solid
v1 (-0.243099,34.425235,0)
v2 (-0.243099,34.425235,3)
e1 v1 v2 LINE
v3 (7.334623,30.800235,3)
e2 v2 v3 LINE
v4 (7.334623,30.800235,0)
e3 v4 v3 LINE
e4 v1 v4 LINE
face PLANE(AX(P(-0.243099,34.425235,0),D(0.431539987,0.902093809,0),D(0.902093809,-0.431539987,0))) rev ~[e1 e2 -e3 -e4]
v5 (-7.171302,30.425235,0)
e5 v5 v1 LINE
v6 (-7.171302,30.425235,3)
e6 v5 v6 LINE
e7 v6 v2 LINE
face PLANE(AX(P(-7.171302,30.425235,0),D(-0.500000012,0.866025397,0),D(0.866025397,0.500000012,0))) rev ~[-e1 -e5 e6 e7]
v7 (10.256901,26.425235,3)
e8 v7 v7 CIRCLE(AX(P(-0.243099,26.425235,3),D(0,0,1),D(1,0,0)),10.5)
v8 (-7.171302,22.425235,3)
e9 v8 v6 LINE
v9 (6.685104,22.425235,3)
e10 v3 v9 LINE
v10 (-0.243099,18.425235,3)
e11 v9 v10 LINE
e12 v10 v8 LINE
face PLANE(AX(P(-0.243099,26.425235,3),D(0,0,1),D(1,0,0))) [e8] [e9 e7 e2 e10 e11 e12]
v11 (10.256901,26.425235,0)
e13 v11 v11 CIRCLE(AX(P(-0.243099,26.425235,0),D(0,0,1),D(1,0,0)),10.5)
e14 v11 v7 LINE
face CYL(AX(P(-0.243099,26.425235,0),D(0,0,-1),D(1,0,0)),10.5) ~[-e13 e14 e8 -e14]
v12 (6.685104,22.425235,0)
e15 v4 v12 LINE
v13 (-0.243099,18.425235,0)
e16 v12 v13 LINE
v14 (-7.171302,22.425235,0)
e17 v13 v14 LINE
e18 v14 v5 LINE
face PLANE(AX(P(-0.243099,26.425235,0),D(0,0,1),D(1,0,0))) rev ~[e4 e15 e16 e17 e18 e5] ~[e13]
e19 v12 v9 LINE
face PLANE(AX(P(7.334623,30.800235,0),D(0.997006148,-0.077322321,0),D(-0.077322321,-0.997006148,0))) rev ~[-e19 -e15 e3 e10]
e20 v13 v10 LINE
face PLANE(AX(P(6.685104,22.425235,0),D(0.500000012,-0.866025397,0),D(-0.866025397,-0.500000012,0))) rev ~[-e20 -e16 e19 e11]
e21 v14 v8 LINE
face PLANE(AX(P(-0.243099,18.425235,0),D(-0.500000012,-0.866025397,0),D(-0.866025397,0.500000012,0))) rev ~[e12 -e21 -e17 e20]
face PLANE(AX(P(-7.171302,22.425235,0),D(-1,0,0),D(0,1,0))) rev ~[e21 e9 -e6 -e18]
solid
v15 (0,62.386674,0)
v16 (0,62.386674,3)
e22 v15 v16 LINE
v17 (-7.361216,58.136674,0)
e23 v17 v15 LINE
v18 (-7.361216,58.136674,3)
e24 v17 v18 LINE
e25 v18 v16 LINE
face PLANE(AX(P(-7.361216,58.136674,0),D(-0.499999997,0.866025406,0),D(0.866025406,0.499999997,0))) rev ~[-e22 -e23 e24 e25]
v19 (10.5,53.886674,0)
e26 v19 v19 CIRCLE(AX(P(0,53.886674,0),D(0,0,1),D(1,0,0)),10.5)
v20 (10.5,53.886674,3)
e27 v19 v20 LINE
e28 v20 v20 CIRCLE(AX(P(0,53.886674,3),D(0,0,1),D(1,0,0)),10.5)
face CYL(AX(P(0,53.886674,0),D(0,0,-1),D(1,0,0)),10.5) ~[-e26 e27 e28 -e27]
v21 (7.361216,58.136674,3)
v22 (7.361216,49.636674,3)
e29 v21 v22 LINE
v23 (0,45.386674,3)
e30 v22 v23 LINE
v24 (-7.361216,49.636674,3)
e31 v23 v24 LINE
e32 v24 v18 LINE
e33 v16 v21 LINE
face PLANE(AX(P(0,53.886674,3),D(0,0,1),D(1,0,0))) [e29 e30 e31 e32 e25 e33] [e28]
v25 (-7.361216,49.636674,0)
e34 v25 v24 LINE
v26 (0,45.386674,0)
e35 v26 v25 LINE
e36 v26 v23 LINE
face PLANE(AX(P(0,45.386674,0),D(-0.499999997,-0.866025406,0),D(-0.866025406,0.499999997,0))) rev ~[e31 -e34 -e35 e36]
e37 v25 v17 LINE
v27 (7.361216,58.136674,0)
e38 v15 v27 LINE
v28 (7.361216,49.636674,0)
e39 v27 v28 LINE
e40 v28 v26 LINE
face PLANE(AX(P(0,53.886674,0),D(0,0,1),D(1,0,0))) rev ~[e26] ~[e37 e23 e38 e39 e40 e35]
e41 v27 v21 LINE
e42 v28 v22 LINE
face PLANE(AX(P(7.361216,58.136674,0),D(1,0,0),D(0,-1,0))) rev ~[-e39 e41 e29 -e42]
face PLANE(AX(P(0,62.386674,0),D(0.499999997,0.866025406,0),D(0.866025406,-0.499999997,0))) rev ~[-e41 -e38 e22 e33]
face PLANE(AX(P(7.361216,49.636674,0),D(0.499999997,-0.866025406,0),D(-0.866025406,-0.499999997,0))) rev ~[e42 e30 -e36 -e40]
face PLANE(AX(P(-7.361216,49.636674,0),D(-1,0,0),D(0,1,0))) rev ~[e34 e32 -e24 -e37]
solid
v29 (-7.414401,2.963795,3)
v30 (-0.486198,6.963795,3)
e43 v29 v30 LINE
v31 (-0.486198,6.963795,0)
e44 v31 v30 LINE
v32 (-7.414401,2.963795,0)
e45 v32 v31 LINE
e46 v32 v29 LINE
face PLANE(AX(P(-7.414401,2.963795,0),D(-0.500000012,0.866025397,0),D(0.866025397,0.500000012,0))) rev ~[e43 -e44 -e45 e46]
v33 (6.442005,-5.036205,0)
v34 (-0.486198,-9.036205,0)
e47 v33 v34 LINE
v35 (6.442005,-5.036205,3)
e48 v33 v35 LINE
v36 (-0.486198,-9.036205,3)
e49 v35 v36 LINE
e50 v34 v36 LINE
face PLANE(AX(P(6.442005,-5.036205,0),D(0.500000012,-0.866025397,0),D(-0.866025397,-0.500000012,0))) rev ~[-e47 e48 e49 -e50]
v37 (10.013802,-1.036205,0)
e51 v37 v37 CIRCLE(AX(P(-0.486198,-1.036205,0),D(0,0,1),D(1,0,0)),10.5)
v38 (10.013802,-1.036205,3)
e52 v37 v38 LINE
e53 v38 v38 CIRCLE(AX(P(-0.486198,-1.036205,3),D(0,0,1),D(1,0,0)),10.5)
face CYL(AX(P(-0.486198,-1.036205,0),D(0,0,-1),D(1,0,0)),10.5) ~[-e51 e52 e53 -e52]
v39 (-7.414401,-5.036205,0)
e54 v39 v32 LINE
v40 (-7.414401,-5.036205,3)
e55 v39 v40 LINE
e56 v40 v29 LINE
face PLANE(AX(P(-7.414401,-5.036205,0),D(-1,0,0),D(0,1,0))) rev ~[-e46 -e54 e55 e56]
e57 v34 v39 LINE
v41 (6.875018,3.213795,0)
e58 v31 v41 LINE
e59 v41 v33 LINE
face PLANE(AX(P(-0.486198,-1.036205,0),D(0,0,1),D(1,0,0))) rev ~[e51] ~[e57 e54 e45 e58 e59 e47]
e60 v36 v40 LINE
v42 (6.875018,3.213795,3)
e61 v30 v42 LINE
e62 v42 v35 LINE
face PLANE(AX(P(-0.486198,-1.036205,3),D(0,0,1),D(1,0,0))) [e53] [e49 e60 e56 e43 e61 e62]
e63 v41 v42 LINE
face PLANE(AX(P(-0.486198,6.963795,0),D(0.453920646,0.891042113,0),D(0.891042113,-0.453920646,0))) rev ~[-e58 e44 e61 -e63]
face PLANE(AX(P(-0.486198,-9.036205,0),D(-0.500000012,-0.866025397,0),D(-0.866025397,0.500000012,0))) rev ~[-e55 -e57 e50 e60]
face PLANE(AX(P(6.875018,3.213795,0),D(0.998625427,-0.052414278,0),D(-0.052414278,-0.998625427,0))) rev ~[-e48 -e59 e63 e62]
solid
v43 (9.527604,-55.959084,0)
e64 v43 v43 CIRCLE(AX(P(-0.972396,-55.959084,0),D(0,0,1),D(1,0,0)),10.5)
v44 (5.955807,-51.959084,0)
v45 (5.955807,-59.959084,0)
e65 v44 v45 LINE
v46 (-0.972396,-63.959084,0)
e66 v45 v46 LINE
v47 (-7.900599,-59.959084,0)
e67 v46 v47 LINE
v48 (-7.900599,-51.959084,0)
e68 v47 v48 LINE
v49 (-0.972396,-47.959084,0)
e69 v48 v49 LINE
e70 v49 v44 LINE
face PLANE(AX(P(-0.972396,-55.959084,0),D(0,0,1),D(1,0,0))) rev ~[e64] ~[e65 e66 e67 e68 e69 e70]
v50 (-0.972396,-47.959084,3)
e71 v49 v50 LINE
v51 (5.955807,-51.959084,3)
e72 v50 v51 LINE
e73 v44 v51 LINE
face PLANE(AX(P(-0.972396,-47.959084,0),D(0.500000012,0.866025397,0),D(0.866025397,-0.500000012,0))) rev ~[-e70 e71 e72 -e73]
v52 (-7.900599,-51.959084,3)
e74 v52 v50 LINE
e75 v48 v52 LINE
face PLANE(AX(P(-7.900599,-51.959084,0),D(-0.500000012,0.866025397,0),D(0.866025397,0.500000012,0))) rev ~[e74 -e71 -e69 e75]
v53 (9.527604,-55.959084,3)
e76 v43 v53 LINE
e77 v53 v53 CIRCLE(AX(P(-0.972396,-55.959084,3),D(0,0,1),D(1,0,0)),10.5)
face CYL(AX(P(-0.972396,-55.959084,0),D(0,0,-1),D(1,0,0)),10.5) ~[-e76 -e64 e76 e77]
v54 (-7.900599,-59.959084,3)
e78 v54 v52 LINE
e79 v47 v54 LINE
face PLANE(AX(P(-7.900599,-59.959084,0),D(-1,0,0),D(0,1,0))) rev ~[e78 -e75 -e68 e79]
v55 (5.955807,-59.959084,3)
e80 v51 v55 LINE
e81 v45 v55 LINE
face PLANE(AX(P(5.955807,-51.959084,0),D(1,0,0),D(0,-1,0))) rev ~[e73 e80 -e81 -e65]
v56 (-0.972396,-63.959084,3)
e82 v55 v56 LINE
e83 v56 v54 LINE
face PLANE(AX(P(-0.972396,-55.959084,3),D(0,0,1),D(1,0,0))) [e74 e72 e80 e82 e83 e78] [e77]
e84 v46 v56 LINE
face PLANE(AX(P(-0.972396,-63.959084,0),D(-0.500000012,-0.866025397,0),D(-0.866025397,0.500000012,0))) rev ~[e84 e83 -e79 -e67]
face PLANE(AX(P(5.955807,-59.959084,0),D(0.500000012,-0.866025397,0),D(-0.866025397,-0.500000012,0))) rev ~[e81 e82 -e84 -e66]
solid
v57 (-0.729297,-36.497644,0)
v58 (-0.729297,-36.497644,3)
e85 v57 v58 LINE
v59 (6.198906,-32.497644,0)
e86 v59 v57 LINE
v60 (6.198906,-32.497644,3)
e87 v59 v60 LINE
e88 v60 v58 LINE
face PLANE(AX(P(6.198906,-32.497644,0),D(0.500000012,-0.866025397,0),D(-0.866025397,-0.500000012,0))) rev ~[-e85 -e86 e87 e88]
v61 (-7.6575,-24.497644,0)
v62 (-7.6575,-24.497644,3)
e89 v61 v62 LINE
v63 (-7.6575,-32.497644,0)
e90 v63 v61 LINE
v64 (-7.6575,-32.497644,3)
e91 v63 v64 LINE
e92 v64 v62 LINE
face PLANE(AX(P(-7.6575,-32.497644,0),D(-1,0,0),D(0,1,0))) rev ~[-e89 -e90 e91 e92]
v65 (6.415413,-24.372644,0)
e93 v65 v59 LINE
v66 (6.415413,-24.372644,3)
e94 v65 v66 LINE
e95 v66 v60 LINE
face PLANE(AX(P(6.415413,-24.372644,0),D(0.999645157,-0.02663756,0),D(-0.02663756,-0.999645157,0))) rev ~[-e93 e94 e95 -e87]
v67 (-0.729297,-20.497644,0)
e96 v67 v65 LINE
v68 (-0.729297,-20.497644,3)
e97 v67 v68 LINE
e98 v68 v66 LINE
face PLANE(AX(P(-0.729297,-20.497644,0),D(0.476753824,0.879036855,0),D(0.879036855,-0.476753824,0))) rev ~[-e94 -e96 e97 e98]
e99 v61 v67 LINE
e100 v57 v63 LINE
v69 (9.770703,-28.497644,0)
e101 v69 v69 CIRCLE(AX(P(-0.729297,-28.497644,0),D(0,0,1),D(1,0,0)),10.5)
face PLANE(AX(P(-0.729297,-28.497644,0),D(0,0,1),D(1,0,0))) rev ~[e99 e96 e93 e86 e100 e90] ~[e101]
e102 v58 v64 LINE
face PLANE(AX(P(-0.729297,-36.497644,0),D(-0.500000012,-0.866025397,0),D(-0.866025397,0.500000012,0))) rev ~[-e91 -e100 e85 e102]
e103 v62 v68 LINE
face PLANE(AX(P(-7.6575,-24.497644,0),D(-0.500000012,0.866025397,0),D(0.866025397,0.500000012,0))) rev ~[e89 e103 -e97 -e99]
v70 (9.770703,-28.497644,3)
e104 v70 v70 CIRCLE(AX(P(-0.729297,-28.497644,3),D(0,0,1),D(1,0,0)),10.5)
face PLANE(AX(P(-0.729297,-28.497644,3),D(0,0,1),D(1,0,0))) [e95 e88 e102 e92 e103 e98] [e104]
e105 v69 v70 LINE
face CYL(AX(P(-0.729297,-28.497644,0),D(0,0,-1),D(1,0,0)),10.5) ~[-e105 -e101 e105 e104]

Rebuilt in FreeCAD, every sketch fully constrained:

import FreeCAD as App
import Part
import Sketcher

V = App.Vector
Q = App.Units.Quantity

doc = App.newDocument("Part")
params = doc.addObject("Spreadsheet::Sheet", "Params")
for row, (alias, value) in enumerate([
    ("sketch1_diameter", "21 mm"),
    ("sketch1_height", "8 mm"),
    ("sketch1_length", "8 mm"),
    ("sketch1_height2", "8.5 mm"),
    ("pad1_length", "3 mm"),
], start=1):
    params.set(f"A{row}", alias)
    params.set(f"B{row}", "=" + value)
    params.setAlias(f"B{row}", alias)

body = doc.addObject("PartDesign::Body", "Body")
body.AllowCompound = True

# Sketch on XY plane
sketch1 = body.newObject("Sketcher::SketchObject", "Sketch")
sketch1.AttachmentSupport = (doc.getObject("XY_Plane"), [""])
sketch1.MapMode = "FlatFace"
sketch1.addGeometry(Part.Circle(V(0, 54, 0), V(0, 0, 1), 10), False)
sketch1.addGeometry(Part.LineSegment(V(-7, 50, 0), V(-7, 58, 0)), False)
sketch1.addGeometry(Part.LineSegment(V(-7, 58, 0), V(0, 62, 0)), False)
sketch1.addGeometry(Part.LineSegment(V(0, 62, 0), V(7, 58, 0)), False)
sketch1.addGeometry(Part.LineSegment(V(7, 58, 0), V(7, 50, 0)), False)
sketch1.addGeometry(Part.LineSegment(V(7, 50, 0), V(0, 45, 0)), False)
sketch1.addGeometry(Part.LineSegment(V(0, 45, 0), V(-7, 50, 0)), False)
sketch1.addGeometry(Part.Circle(V(0, 26, 0), V(0, 0, 1), 10), False)
sketch1.addGeometry(Part.LineSegment(V(-7, 22, 0), V(-7, 30, 0)), False)
sketch1.addGeometry(Part.LineSegment(V(-7, 30, 0), V(0, 34, 0)), False)
sketch1.addGeometry(Part.LineSegment(V(0, 34, 0), V(7, 31, 0)), False)
sketch1.addGeometry(Part.LineSegment(V(7, 31, 0), V(7, 22, 0)), False)
sketch1.addGeometry(Part.LineSegment(V(7, 22, 0), V(0, 18, 0)), False)
sketch1.addGeometry(Part.LineSegment(V(0, 18, 0), V(-7, 22, 0)), False)
sketch1.addGeometry(Part.Circle(V(0, -1, 0), V(0, 0, 1), 10), False)
sketch1.addGeometry(Part.LineSegment(V(-7, -5, 0), V(-7, 3, 0)), False)
sketch1.addGeometry(Part.LineSegment(V(-7, 3, 0), V(0, 7, 0)), False)
sketch1.addGeometry(Part.LineSegment(V(0, 7, 0), V(7, 3, 0)), False)
sketch1.addGeometry(Part.LineSegment(V(7, 3, 0), V(6, -5, 0)), False)
sketch1.addGeometry(Part.LineSegment(V(6, -5, 0), V(0, -9, 0)), False)
sketch1.addGeometry(Part.LineSegment(V(0, -9, 0), V(-7, -5, 0)), False)
sketch1.addGeometry(Part.Circle(V(-1, -28, 0), V(0, 0, 1), 10), False)
sketch1.addGeometry(Part.LineSegment(V(-8, -32, 0), V(-8, -24, 0)), False)
sketch1.addGeometry(Part.LineSegment(V(-8, -24, 0), V(-1, -20, 0)), False)
sketch1.addGeometry(Part.LineSegment(V(-1, -20, 0), V(6, -24, 0)), False)
sketch1.addGeometry(Part.LineSegment(V(6, -24, 0), V(6, -32, 0)), False)
sketch1.addGeometry(Part.LineSegment(V(6, -32, 0), V(-1, -36, 0)), False)
sketch1.addGeometry(Part.LineSegment(V(-1, -36, 0), V(-8, -32, 0)), False)
sketch1.addGeometry(Part.Circle(V(-1, -56, 0), V(0, 0, 1), 10), False)
sketch1.addGeometry(Part.LineSegment(V(-8, -60, 0), V(-8, -52, 0)), False)
sketch1.addGeometry(Part.LineSegment(V(-8, -52, 0), V(-1, -48, 0)), False)
sketch1.addGeometry(Part.LineSegment(V(-1, -48, 0), V(6, -52, 0)), False)
sketch1.addGeometry(Part.LineSegment(V(6, -52, 0), V(6, -60, 0)), False)
sketch1.addGeometry(Part.LineSegment(V(6, -60, 0), V(-1, -64, 0)), False)
sketch1.addGeometry(Part.LineSegment(V(-1, -64, 0), V(-8, -60, 0)), False)
sketch1.addConstraint(Sketcher.Constraint("Coincident", 1, 2, 2, 1))
sketch1.addConstraint(Sketcher.Constraint("Coincident", 2, 2, 3, 1))
sketch1.addConstraint(Sketcher.Constraint("Coincident", 3, 2, 4, 1))
sketch1.addConstraint(Sketcher.Constraint("Coincident", 4, 2, 5, 1))
sketch1.addConstraint(Sketcher.Constraint("Coincident", 5, 2, 6, 1))
sketch1.addConstraint(Sketcher.Constraint("Coincident", 6, 2, 1, 1))
sketch1.addConstraint(Sketcher.Constraint("Coincident", 8, 2, 9, 1))
sketch1.addConstraint(Sketcher.Constraint("Coincident", 9, 2, 10, 1))
sketch1.addConstraint(Sketcher.Constraint("Coincident", 10, 2, 11, 1))
sketch1.addConstraint(Sketcher.Constraint("Coincident", 11, 2, 12, 1))
sketch1.addConstraint(Sketcher.Constraint("Coincident", 12, 2, 13, 1))
sketch1.addConstraint(Sketcher.Constraint("Coincident", 13, 2, 8, 1))
sketch1.addConstraint(Sketcher.Constraint("Coincident", 15, 2, 16, 1))
sketch1.addConstraint(Sketcher.Constraint("Coincident", 16, 2, 17, 1))
sketch1.addConstraint(Sketcher.Constraint("Coincident", 17, 2, 18, 1))
sketch1.addConstraint(Sketcher.Constraint("Coincident", 18, 2, 19, 1))
sketch1.addConstraint(Sketcher.Constraint("Coincident", 19, 2, 20, 1))
sketch1.addConstraint(Sketcher.Constraint("Coincident", 20, 2, 15, 1))
sketch1.addConstraint(Sketcher.Constraint("Coincident", 22, 2, 23, 1))
sketch1.addConstraint(Sketcher.Constraint("Coincident", 23, 2, 24, 1))
sketch1.addConstraint(Sketcher.Constraint("Coincident", 24, 2, 25, 1))
sketch1.addConstraint(Sketcher.Constraint("Coincident", 25, 2, 26, 1))
sketch1.addConstraint(Sketcher.Constraint("Coincident", 26, 2, 27, 1))
sketch1.addConstraint(Sketcher.Constraint("Coincident", 27, 2, 22, 1))
sketch1.addConstraint(Sketcher.Constraint("Coincident", 29, 2, 30, 1))
sketch1.addConstraint(Sketcher.Constraint("Coincident", 30, 2, 31, 1))
sketch1.addConstraint(Sketcher.Constraint("Coincident", 31, 2, 32, 1))
sketch1.addConstraint(Sketcher.Constraint("Coincident", 32, 2, 33, 1))
sketch1.addConstraint(Sketcher.Constraint("Coincident", 33, 2, 34, 1))
sketch1.addConstraint(Sketcher.Constraint("Coincident", 34, 2, 29, 1))
sketch1.addConstraint(Sketcher.Constraint("Vertical", 1))
sketch1.addConstraint(Sketcher.Constraint("Vertical", 4))
sketch1.addConstraint(Sketcher.Constraint("Vertical", 8))
sketch1.addConstraint(Sketcher.Constraint("Vertical", 15))
sketch1.addConstraint(Sketcher.Constraint("Vertical", 22))
sketch1.addConstraint(Sketcher.Constraint("Vertical", 29))
sketch1.addConstraint(Sketcher.Constraint("Vertical", 32))
sketch1.addConstraint(Sketcher.Constraint("Equal", 0, 7))
sketch1.addConstraint(Sketcher.Constraint("Equal", 7, 14))
sketch1.addConstraint(Sketcher.Constraint("Equal", 14, 21))
sketch1.addConstraint(Sketcher.Constraint("Equal", 21, 28))
sketch1.addConstraint(Sketcher.Constraint("Symmetric", 1, 2, 3, 2, -2))
sketch1.addConstraint(Sketcher.Constraint("PointOnObject", 0, 3, -2))
sketch1.addConstraint(Sketcher.Constraint("PointOnObject", 2, 2, -2))
sketch1.addConstraint(Sketcher.Constraint("PointOnObject", 5, 2, -2))
sketch1.addConstraint(Sketcher.Constraint("Parallel", 2, 5))
sketch1.addConstraint(Sketcher.Constraint("Parallel", 3, 6))
sketch1.addConstraint(Sketcher.Constraint("Parallel", 5, 9))
sketch1.addConstraint(Sketcher.Constraint("Parallel", 9, 12))
sketch1.addConstraint(Sketcher.Constraint("Parallel", 6, 13))
sketch1.addConstraint(Sketcher.Constraint("Parallel", 12, 16))
sketch1.addConstraint(Sketcher.Constraint("Parallel", 16, 19))
sketch1.addConstraint(Sketcher.Constraint("Parallel", 13, 20))
sketch1.addConstraint(Sketcher.Constraint("Parallel", 19, 23))
sketch1.addConstraint(Sketcher.Constraint("Parallel", 23, 26))
sketch1.addConstraint(Sketcher.Constraint("Parallel", 20, 27))
sketch1.addConstraint(Sketcher.Constraint("Parallel", 26, 30))
sketch1.addConstraint(Sketcher.Constraint("Parallel", 27, 31))
sketch1.addConstraint(Sketcher.Constraint("Parallel", 30, 33))
sketch1.addConstraint(Sketcher.Constraint("Parallel", 31, 34))
sketch1.addConstraint(Sketcher.Constraint("Horizontal", 11, 2, 13, 2))
sketch1.addConstraint(Sketcher.Constraint("Horizontal", 18, 2, 20, 2))
sketch1.addConstraint(Sketcher.Constraint("Horizontal", 25, 2, 27, 2))
sketch1.addConstraint(Sketcher.Constraint("Horizontal", 29, 2, 31, 2))
sketch1.addConstraint(Sketcher.Constraint("Horizontal", 32, 2, 34, 2))
sketch1.addConstraint(Sketcher.Constraint("Vertical", 7, 3, 9, 2))
sketch1.addConstraint(Sketcher.Constraint("Vertical", 9, 2, 12, 2))
sketch1.addConstraint(Sketcher.Constraint("Vertical", 14, 3, 16, 2))
sketch1.addConstraint(Sketcher.Constraint("Vertical", 16, 2, 19, 2))
sketch1.addConstraint(Sketcher.Constraint("Vertical", 21, 3, 23, 2))
sketch1.addConstraint(Sketcher.Constraint("Vertical", 23, 2, 26, 2))
sketch1.addConstraint(Sketcher.Constraint("Vertical", 28, 3, 30, 2))
sketch1.addConstraint(Sketcher.Constraint("Equal", 8, 15))
sketch1.addConstraint(Sketcher.Constraint("Equal", 15, 22))
sketch1.addConstraint(Sketcher.Constraint("Equal", 22, 29))
sketch1.addConstraint(Sketcher.Constraint("Equal", 10, 11))
sketch1.addConstraint(Sketcher.Constraint("Equal", 13, 16))
sketch1.addConstraint(Sketcher.Constraint("Equal", 17, 18))
sketch1.addConstraint(Sketcher.Constraint("Equal", 20, 23))
sketch1.addConstraint(Sketcher.Constraint("Equal", 24, 25))
sketch1.addConstraint(Sketcher.Constraint("Equal", 27, 30))
sketch1.addConstraint(Sketcher.Constraint("Diameter", 0, Q("21 mm")))
sketch1.addConstraint(Sketcher.Constraint("DistanceY", 8, 1, 8, 2, Q("8 mm")))
sketch1.addConstraint(Sketcher.Constraint("Angle", 2, Q("30 deg")))
sketch1.addConstraint(Sketcher.Constraint("Distance", 9, Q("8 mm")))
sketch1.addConstraint(Sketcher.Constraint("DistanceY", 1, 1, 1, 2, Q("8.5 mm")))
sketch1.addConstraint(Sketcher.Constraint("DistanceY", 5, 2, 2, 2, Q("17 mm")))
sketch1.addConstraint(Sketcher.Constraint("DistanceY", 7, 3, 8, 2, Q("4 mm")))
sketch1.addConstraint(Sketcher.Constraint("DistanceY", 14, 3, 15, 2, Q("4 mm")))
sketch1.addConstraint(Sketcher.Constraint("DistanceY", 21, 3, 22, 2, Q("4 mm")))
sketch1.addConstraint(Sketcher.Constraint("DistanceY", 28, 3, 29, 2, Q("4 mm")))
sketch1.addConstraint(Sketcher.Constraint("DistanceY", 0, 3, 2, 2, Q("8.5 mm")))
sketch1.addConstraint(Sketcher.Constraint("DistanceY", 17, 2, 16, 2, Q("3.75 mm")))
sketch1.addConstraint(Sketcher.Constraint("DistanceY", 10, 2, 9, 2, Q("3.625 mm")))
sketch1.addConstraint(Sketcher.Constraint("DistanceY", 24, 2, 23, 2, Q("3.875 mm")))
sketch1.addConstraint(Sketcher.Constraint("DistanceX", 7, 3, -1, 1, Q("0.243099 mm")))
sketch1.addConstraint(Sketcher.Constraint("DistanceX", 15, 2, -1, 1, Q("7.414401 mm")))
sketch1.addConstraint(Sketcher.Constraint("DistanceX", 22, 2, -1, 1, Q("7.6575 mm")))
sketch1.addConstraint(Sketcher.Constraint("DistanceX", 29, 2, -1, 1, Q("7.900599 mm")))
sketch1.addConstraint(Sketcher.Constraint("DistanceY", 7, 3, 0, 3, Q("27.461439 mm")))
sketch1.addConstraint(Sketcher.Constraint("DistanceY", 14, 3, 7, 3, Q("27.46144 mm")))
sketch1.addConstraint(Sketcher.Constraint("DistanceY", 21, 3, 14, 3, Q("27.461439 mm")))
sketch1.addConstraint(Sketcher.Constraint("DistanceY", 28, 3, 21, 3, Q("27.46144 mm")))
sketch1.addConstraint(Sketcher.Constraint("DistanceY", -1, 1, 0, 3, Q("53.886674 mm")))
sketch1.setExpression("Constraints[81]", "Params.sketch1_diameter")
sketch1.setExpression("Constraints[82]", "Params.sketch1_height")
sketch1.setExpression("Constraints[84]", "Params.sketch1_length")
sketch1.setExpression("Constraints[85]", "Params.sketch1_height2")
pad1 = body.newObject("PartDesign::Pad", "Pad")
pad1.Profile = sketch1
pad1.setExpression("Length", "Params.pad1_length")

doc.recompute()
